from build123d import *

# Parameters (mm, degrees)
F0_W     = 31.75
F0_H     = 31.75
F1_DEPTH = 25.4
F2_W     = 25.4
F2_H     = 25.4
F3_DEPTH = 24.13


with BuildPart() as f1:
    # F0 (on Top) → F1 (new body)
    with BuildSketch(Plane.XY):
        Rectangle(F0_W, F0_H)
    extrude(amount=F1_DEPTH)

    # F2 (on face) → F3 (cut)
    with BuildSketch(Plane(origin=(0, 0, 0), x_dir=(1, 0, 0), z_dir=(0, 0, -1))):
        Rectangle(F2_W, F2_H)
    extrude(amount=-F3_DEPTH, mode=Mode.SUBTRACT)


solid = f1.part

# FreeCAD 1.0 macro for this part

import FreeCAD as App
import Part
import Sketcher
Q = App.Units.Quantity

doc = App.newDocument("Part")
body = doc.addObject("PartDesign::Body", "Body")

sketch1 = body.newObject("Sketcher::SketchObject", "Sketch")
sketch1.AttachmentSupport = (doc.getObject("XY_Plane"), [""])
sketch1.MapMode = "FlatFace"
sketch1.addGeometry([
    Part.LineSegment(App.Vector(-15.875, 15.875, 0), App.Vector(-15.875, -15.875, 0)),
    Part.LineSegment(App.Vector(-15.875, -15.875, 0), App.Vector(15.875, -15.875, 0)),
    Part.LineSegment(App.Vector(15.875, -15.875, 0), App.Vector(15.875, 15.875, 0)),
    Part.LineSegment(App.Vector(15.875, 15.875, 0), App.Vector(-15.875, 15.875, 0)),
], False)
sketch1.addConstraint([
    Sketcher.Constraint("Coincident", 0, 2, 1, 1),
    Sketcher.Constraint("Coincident", 1, 2, 2, 1),
    Sketcher.Constraint("Coincident", 2, 2, 3, 1),
    Sketcher.Constraint("Coincident", 3, 2, 0, 1),
    Sketcher.Constraint("Vertical", 0),
    Sketcher.Constraint("Horizontal", 1),
    Sketcher.Constraint("Vertical", 2),
    Sketcher.Constraint("Horizontal", 3),
    Sketcher.Constraint("Symmetric", 0, 2, 2, 2, -1, 1),
    Sketcher.Constraint("Equal", 3, 0),
    Sketcher.Constraint("DistanceX", 1, 1, 1, 2, Q("1.25 in")),
])
pad1 = body.newObject("PartDesign::Pad", "Pad")
pad1.Profile = sketch1
pad1.Length = Q("1 in")

sketch2 = body.newObject("Sketcher::SketchObject", "Sketch001")
sketch2.AttachmentSupport = (doc.getObject("XY_Plane"), [""])
sketch2.MapMode = "FlatFace"
sketch2.addGeometry([
    Part.LineSegment(App.Vector(-12.7, -12.7, 0), App.Vector(-12.7, 12.7, 0)),
    Part.LineSegment(App.Vector(-12.7, 12.7, 0), App.Vector(12.7, 12.7, 0)),
    Part.LineSegment(App.Vector(12.7, 12.7, 0), App.Vector(12.7, -12.7, 0)),
    Part.LineSegment(App.Vector(12.7, -12.7, 0), App.Vector(-12.7, -12.7, 0)),
], False)
sketch2.addConstraint([
    Sketcher.Constraint("Coincident", 0, 2, 1, 1),
    Sketcher.Constraint("Coincident", 1, 2, 2, 1),
    Sketcher.Constraint("Coincident", 2, 2, 3, 1),
    Sketcher.Constraint("Coincident", 3, 2, 0, 1),
    Sketcher.Constraint("Vertical", 0),
    Sketcher.Constraint("Horizontal", 1),
    Sketcher.Constraint("Vertical", 2),
    Sketcher.Constraint("Horizontal", 3),
    Sketcher.Constraint("Symmetric", 0, 2, 2, 2, -1, 1),
    Sketcher.Constraint("Equal", 3, 0),
    Sketcher.Constraint("DistanceX", 1, 1, 1, 2, Q("1 in")),
])
pocket1 = body.newObject("PartDesign::Pocket", "Pocket")
pocket1.Profile = sketch2
pocket1.Length = Q("0.95 in")
pocket1.Reversed = True

doc.recompute()
